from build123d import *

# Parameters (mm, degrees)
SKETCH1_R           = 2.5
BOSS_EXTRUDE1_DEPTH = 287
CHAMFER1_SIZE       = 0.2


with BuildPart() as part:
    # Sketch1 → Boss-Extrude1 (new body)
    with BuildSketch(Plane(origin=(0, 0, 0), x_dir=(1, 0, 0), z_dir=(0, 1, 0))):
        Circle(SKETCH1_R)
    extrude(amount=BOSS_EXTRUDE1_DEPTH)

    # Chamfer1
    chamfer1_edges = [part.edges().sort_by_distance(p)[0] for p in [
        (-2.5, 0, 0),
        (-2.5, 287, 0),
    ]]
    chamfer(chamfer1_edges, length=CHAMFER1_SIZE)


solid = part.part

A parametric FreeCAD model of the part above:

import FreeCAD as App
import Part
import Sketcher
from FreeCAD import Vector


def edges_at(feature, points):
    """Names of the edges that pass closest to the given points."""
    edges = feature.Shape.Edges
    near = lambda p: min(range(len(edges)), key=lambda i: edges[i].distToShape(Part.Vertex(*p))[0])
    return sorted({f"Edge{near(p) + 1}" for p in points})

doc = App.newDocument("Part")
body = doc.addObject("PartDesign::Body", "Body")

sketch1 = doc.addObject("Sketcher::SketchObject", "Sketch")
body.addObject(sketch1)
sketch1.AttachmentSupport = (doc.XZ_Plane, [""])
sketch1.MapMode = "FlatFace"
sketch1.addGeometry(Part.Circle(Vector(0, 0, 0), Vector(0, 0, 1), 2.5), False)
sketch1.addConstraint([
    Sketcher.Constraint("Coincident", 0, 3, -1, 1),
    Sketcher.Constraint("Diameter", 0, 5.0),
])
pad1 = doc.addObject("PartDesign::Pad", "Pad")
body.addObject(pad1)
pad1.Profile = sketch1
pad1.Length = 287
pad1.Reversed = True
doc.recompute()

chamfer = doc.addObject("PartDesign::Chamfer", "Chamfer")
body.addObject(chamfer)
chamfer.Base = (pad1, edges_at(pad1, [(-2.5, 0, 0), (-2.5, 287, 0)]))
chamfer.Size = 0.2

doc.recompute()
